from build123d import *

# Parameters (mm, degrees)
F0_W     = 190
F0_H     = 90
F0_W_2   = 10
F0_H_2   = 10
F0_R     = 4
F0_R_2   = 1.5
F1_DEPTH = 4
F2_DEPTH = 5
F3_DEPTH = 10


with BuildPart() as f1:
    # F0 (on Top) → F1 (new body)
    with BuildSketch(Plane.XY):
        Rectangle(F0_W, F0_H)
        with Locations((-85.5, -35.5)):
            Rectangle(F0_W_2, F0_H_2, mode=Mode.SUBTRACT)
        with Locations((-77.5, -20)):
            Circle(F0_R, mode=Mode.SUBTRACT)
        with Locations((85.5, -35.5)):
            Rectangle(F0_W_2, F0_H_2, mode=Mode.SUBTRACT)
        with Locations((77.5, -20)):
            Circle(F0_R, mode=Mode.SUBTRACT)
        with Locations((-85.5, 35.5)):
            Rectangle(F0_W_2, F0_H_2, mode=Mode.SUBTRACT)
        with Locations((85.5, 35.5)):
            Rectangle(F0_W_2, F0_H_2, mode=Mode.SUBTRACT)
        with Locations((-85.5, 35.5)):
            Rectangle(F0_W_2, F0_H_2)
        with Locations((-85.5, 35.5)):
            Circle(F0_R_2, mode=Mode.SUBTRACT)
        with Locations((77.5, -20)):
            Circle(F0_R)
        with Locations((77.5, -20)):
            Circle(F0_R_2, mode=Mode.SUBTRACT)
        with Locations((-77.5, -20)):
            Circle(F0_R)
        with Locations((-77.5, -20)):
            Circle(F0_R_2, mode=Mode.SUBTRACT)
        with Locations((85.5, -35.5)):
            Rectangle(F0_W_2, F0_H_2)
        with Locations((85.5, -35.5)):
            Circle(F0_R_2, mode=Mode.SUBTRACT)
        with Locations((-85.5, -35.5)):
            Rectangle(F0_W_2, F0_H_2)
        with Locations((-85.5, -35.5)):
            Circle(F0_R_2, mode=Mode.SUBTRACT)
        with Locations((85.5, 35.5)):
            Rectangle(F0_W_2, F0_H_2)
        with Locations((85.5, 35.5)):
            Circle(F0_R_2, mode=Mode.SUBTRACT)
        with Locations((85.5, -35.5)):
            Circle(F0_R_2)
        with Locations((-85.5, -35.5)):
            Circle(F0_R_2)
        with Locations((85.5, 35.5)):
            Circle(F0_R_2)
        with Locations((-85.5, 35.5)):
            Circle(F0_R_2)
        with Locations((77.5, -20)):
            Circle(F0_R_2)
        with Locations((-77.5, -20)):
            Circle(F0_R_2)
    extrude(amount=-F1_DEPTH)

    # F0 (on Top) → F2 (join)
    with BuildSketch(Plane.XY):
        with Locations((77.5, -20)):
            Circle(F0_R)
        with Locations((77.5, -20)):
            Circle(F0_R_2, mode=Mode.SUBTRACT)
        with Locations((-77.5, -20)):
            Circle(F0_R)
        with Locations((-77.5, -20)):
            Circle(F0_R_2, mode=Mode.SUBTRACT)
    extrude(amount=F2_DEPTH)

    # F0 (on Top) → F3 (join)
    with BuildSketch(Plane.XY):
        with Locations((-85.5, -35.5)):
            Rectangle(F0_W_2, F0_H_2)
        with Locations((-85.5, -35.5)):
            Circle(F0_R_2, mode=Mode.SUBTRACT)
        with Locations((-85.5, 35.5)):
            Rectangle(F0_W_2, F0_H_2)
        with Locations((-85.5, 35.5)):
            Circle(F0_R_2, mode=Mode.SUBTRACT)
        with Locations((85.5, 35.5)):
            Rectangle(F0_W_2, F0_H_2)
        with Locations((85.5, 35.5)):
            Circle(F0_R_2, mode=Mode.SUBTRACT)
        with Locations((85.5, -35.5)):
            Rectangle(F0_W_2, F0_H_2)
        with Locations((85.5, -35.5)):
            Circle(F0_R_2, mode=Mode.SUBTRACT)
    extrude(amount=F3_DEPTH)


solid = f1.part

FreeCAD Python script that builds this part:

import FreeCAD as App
import Part
import Sketcher
from FreeCAD import Vector
Q = App.Units.Quantity


def add_polygon(sketch, points):
    """Adds a closed chain of lines whose ends are joined by coincident constraints."""
    first, n = sketch.GeometryCount, len(points)
    for a, b in zip(points, points[1:] + points[:1]):
        sketch.addGeometry(Part.LineSegment(App.Vector(*a, 0), App.Vector(*b, 0)), False)
    for i in range(n):
        sketch.addConstraint(Sketcher.Constraint("Coincident", first + i, 2, first + (i + 1) % n, 1))

doc = App.newDocument("Part")
body = doc.addObject("PartDesign::Body", "Body")

# Sketch on XY plane
sketch1 = body.newObject("Sketcher::SketchObject", "Sketch")
sketch1.AttachmentSupport = (doc.getObject("XY_Plane"), [""])
sketch1.MapMode = "FlatFace"
add_polygon(sketch1, [(-95, 45), (-95, -45), (95, -45), (95, 45)])  # lines 0-3
sketch1.addConstraint(Sketcher.Constraint("Vertical", 0))
sketch1.addConstraint(Sketcher.Constraint("Horizontal", 1))
sketch1.addConstraint(Sketcher.Constraint("Vertical", 2))
sketch1.addConstraint(Sketcher.Constraint("Horizontal", 3))
sketch1.addConstraint(Sketcher.Constraint("Symmetric", 0, 2, 2, 2, -1, 1))
sketch1.addConstraint(Sketcher.Constraint("DistanceX", 1, 1, 1, 2, Q("190 mm")))
sketch1.addConstraint(Sketcher.Constraint("DistanceY", 0, 2, 0, 1, Q("90 mm")))
pad1 = body.newObject("PartDesign::Pad", "Pad")
pad1.Profile = sketch1
pad1.Length = 4
pad1.Reversed = True

# Sketch on XY plane
sketch2 = body.newObject("Sketcher::SketchObject", "Sketch001")
sketch2.AttachmentSupport = (doc.getObject("XY_Plane"), [""])
sketch2.MapMode = "FlatFace"
sketch2.addGeometry(Part.Circle(Vector(77.5, -20, 0), Vector(0, 0, 1), 4), False)
sketch2.addGeometry(Part.Circle(Vector(77.5, -20, 0), Vector(0, 0, 1), 1.5), False)
sketch2.addGeometry(Part.Circle(Vector(-77.5, -20, 0), Vector(0, 0, 1), 4), False)
sketch2.addGeometry(Part.Circle(Vector(-77.5, -20, 0), Vector(0, 0, 1), 1.5), False)
sketch2.addConstraint(Sketcher.Constraint("Coincident", 1, 3, 0, 3))
sketch2.addConstraint(Sketcher.Constraint("Coincident", 3, 3, 2, 3))
sketch2.addConstraint(Sketcher.Constraint("Equal", 0, 2))
sketch2.addConstraint(Sketcher.Constraint("Equal", 1, 3))
sketch2.addConstraint(Sketcher.Constraint("Symmetric", 0, 3, 2, 3, -2))
sketch2.addConstraint(Sketcher.Constraint("Diameter", 0, Q("8 mm")))
sketch2.addConstraint(Sketcher.Constraint("Diameter", 1, Q("3 mm")))
sketch2.addConstraint(Sketcher.Constraint("DistanceY", 0, 3, -1, 1, Q("20 mm")))
sketch2.addConstraint(Sketcher.Constraint("DistanceX", 2, 3, 0, 3, Q("155 mm")))
pad2 = body.newObject("PartDesign::Pad", "Pad001")
pad2.Profile = sketch2
pad2.Length = 5

# Sketch on XY plane
sketch3 = body.newObject("Sketcher::SketchObject", "Sketch002")
sketch3.AttachmentSupport = (doc.getObject("XY_Plane"), [""])
sketch3.MapMode = "FlatFace"
add_polygon(sketch3, [(-90.5, -30.5), (-90.5, -40.5), (-80.5, -40.5), (-80.5, -30.5)])  # lines 0-3
sketch3.addGeometry(Part.Circle(Vector(-85.5, -35.5, 0), Vector(0, 0, 1), 1.5), False)  # 4
add_polygon(sketch3, [(-90.5, 40.5), (-90.5, 30.5), (-80.5, 30.5), (-80.5, 40.5)])  # lines 5-8
sketch3.addGeometry(Part.Circle(Vector(-85.5, 35.5, 0), Vector(0, 0, 1), 1.5), False)  # 9
add_polygon(sketch3, [(80.5, 40.5), (80.5, 30.5), (90.5, 30.5), (90.5, 40.5)])  # lines 10-13
sketch3.addGeometry(Part.Circle(Vector(85.5, 35.5, 0), Vector(0, 0, 1), 1.5), False)  # 14
add_polygon(sketch3, [(80.5, -30.5), (80.5, -40.5), (90.5, -40.5), (90.5, -30.5)])  # lines 15-18
sketch3.addGeometry(Part.Circle(Vector(85.5, -35.5, 0), Vector(0, 0, 1), 1.5), False)  # 19
sketch3.addConstraint(Sketcher.Constraint("Vertical", 0))
sketch3.addConstraint(Sketcher.Constraint("Horizontal", 1))
sketch3.addConstraint(Sketcher.Constraint("Vertical", 2))
sketch3.addConstraint(Sketcher.Constraint("Horizontal", 3))
sketch3.addConstraint(Sketcher.Constraint("Vertical", 5))
sketch3.addConstraint(Sketcher.Constraint("Horizontal", 6))
sketch3.addConstraint(Sketcher.Constraint("Vertical", 7))
sketch3.addConstraint(Sketcher.Constraint("Horizontal", 8))
sketch3.addConstraint(Sketcher.Constraint("Vertical", 10))
sketch3.addConstraint(Sketcher.Constraint("Horizontal", 11))
sketch3.addConstraint(Sketcher.Constraint("Vertical", 12))
sketch3.addConstraint(Sketcher.Constraint("Horizontal", 13))
sketch3.addConstraint(Sketcher.Constraint("Vertical", 15))
sketch3.addConstraint(Sketcher.Constraint("Horizontal", 16))
sketch3.addConstraint(Sketcher.Constraint("Vertical", 17))
sketch3.addConstraint(Sketcher.Constraint("Horizontal", 18))
sketch3.addConstraint(Sketcher.Constraint("Equal", 4, 9))
sketch3.addConstraint(Sketcher.Constraint("Equal", 9, 14))
sketch3.addConstraint(Sketcher.Constraint("Equal", 14, 19))
sketch3.addConstraint(Sketcher.Constraint("Symmetric", 4, 3, 14, 3, -1, 1))
sketch3.addConstraint(Sketcher.Constraint("Symmetric", 9, 3, 19, 3, -1, 1))
sketch3.addConstraint(Sketcher.Constraint("Symmetric", 2, 2, 10, 2, -1, 1))
sketch3.addConstraint(Sketcher.Constraint("Symmetric", 0, 2, 12, 2, -1, 1))
sketch3.addConstraint(Sketcher.Constraint("Symmetric", 7, 2, 15, 2, -1, 1))
sketch3.addConstraint(Sketcher.Constraint("Symmetric", 5, 2, 17, 2, -1, 1))
sketch3.addConstraint(Sketcher.Constraint("Symmetric", 9, 3, 14, 3, -2))
sketch3.addConstraint(Sketcher.Constraint("Symmetric", 6, 2, 10, 2, -2))
sketch3.addConstraint(Sketcher.Constraint("Symmetric", 8, 2, 12, 2, -2))
sketch3.addConstraint(Sketcher.Constraint("Equal", 18, 0))
sketch3.addConstraint(Sketcher.Constraint("Diameter", 4, Q("3 mm")))
sketch3.addConstraint(Sketcher.Constraint("DistanceX", 1, 1, 1, 2, Q("10 mm")))
sketch3.addConstraint(Sketcher.Constraint("DistanceY", 4, 3, 9, 3, Q("71 mm")))
sketch3.addConstraint(Sketcher.Constraint("DistanceX", 9, 3, 14, 3, Q("171 mm")))
sketch3.addConstraint(Sketcher.Constraint("DistanceX", 0, 2, 4, 3, Q("5 mm")))
sketch3.addConstraint(Sketcher.Constraint("DistanceY", 0, 2, 4, 3, Q("5 mm")))
pad3 = body.newObject("PartDesign::Pad", "Pad002")
pad3.Profile = sketch3
pad3.Length = 10

doc.recompute()
